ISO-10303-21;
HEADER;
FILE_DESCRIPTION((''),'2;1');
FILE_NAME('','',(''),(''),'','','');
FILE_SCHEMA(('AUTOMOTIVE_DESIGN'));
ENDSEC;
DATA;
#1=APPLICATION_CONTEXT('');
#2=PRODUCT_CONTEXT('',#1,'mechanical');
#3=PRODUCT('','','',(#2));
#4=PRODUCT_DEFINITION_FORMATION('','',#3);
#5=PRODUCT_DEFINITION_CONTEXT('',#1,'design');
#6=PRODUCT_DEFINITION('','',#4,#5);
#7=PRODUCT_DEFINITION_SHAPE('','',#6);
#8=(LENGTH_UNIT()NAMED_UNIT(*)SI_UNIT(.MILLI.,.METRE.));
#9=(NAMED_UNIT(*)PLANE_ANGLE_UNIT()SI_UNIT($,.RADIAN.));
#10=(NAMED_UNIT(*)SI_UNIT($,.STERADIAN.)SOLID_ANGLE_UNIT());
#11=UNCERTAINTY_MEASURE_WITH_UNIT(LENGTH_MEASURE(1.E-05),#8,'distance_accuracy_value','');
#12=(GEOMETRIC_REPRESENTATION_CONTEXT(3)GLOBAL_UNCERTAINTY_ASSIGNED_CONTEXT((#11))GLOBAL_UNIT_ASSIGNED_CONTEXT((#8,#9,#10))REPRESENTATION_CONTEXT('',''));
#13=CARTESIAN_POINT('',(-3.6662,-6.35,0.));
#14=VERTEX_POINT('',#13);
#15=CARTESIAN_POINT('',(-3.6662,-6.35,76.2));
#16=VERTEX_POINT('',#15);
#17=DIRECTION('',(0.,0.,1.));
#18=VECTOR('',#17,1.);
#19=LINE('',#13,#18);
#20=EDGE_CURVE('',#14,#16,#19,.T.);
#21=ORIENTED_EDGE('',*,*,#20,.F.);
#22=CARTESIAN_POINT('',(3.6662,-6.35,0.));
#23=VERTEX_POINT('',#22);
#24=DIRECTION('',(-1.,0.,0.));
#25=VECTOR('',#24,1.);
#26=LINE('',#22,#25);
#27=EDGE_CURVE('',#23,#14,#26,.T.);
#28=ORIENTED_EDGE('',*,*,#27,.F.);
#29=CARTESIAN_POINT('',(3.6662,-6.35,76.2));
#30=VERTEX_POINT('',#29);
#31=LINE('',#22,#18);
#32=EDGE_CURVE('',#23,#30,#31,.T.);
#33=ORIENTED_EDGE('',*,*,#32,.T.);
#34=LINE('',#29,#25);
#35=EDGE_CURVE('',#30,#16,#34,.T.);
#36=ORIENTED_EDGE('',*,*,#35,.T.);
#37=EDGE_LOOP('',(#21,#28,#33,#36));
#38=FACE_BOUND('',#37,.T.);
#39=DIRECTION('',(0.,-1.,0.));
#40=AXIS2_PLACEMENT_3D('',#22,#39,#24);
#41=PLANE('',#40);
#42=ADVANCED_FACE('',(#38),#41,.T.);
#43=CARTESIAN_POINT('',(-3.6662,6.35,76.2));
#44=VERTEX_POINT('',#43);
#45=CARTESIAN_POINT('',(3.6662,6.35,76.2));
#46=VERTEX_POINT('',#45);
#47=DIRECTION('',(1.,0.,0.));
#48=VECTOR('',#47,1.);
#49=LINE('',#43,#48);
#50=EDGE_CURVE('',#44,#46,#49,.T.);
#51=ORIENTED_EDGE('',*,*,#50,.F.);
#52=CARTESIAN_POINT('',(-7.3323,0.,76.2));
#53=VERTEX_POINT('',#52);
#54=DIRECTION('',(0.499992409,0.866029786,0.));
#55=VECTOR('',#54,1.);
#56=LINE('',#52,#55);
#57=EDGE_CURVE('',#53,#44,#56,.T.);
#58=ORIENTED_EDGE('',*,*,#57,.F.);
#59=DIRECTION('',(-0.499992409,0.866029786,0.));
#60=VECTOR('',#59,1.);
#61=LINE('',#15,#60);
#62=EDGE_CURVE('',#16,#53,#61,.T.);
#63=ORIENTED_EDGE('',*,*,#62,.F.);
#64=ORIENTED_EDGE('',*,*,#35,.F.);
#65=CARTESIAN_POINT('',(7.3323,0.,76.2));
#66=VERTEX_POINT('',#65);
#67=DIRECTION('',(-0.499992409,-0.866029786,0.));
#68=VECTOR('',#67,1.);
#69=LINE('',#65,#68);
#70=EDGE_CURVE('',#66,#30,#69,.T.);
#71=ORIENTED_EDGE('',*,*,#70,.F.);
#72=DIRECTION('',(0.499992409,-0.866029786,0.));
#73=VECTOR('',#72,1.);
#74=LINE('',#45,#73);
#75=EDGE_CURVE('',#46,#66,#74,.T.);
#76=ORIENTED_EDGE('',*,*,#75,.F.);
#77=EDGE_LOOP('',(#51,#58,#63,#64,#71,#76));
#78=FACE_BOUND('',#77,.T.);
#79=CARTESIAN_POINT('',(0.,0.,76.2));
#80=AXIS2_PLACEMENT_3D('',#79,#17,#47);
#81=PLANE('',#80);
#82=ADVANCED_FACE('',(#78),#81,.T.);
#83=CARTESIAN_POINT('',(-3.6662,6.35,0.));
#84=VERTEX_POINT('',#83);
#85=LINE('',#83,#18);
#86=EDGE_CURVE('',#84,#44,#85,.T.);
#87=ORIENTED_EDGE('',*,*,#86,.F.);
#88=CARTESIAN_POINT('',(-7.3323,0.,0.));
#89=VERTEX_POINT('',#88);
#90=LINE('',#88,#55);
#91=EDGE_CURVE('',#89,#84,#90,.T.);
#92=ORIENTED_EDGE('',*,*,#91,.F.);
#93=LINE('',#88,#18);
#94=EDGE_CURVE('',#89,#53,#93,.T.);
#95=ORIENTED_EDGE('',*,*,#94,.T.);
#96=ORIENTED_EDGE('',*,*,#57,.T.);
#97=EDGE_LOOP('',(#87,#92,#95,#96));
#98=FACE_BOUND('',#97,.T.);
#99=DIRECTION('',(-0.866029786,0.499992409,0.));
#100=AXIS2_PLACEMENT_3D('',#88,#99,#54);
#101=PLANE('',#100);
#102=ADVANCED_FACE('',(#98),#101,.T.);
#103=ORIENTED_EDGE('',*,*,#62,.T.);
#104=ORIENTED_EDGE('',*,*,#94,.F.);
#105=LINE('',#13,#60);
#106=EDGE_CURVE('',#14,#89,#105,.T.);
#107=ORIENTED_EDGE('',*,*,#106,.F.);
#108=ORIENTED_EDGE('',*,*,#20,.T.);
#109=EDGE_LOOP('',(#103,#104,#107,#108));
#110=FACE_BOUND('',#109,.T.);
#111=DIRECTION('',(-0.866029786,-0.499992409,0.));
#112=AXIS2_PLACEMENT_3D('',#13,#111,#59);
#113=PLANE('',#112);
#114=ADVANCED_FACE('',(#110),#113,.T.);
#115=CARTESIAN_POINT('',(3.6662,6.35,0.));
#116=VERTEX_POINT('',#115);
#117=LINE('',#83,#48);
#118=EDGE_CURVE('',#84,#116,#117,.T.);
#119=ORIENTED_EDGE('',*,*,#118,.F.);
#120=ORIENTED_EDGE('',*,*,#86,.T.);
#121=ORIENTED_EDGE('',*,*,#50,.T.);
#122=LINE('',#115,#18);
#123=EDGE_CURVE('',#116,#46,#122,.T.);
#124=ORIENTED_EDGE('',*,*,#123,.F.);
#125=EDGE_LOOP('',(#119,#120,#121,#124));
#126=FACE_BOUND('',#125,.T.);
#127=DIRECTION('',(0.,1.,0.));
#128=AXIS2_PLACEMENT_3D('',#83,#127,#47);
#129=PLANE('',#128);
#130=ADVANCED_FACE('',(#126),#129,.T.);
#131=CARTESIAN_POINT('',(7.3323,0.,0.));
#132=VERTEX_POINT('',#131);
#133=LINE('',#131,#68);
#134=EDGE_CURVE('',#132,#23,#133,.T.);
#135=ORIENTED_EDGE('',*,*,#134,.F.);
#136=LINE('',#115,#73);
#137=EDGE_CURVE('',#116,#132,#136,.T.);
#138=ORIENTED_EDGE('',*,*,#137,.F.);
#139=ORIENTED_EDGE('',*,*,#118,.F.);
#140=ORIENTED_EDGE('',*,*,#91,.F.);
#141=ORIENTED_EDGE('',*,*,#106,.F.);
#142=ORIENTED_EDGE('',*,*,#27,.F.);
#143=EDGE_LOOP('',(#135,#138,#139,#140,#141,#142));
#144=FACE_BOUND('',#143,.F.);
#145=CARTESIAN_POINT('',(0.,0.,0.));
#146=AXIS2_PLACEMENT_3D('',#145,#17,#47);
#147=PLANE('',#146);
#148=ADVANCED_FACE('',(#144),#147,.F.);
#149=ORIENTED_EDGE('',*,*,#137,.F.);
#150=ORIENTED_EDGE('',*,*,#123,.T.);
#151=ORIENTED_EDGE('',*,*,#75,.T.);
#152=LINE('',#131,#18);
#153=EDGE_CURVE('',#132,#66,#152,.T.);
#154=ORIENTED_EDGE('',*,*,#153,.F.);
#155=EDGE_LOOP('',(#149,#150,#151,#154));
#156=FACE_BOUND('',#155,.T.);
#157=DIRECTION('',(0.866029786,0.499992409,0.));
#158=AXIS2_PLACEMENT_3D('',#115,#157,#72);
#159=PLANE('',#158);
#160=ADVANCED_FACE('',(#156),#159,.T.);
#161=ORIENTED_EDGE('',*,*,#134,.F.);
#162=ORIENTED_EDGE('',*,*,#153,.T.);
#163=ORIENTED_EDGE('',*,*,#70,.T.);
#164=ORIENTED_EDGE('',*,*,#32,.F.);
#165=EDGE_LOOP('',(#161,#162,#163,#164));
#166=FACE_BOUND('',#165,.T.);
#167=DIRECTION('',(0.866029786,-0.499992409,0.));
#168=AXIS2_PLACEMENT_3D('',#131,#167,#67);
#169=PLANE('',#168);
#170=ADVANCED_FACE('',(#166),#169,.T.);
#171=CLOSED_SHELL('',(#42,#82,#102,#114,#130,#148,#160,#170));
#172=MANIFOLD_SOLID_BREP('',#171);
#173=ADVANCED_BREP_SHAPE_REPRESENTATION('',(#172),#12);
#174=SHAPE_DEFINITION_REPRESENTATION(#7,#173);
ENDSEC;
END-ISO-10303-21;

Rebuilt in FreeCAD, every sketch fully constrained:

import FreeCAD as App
import Part
import Sketcher
Q = App.Units.Quantity


def add_polygon(sketch, points):
    """Adds a closed chain of lines whose ends are joined by coincident constraints."""
    first, n = sketch.GeometryCount, len(points)
    for a, b in zip(points, points[1:] + points[:1]):
        sketch.addGeometry(Part.LineSegment(App.Vector(*a, 0), App.Vector(*b, 0)), False)
    for i in range(n):
        sketch.addConstraint(Sketcher.Constraint("Coincident", first + i, 2, first + (i + 1) % n, 1))

doc = App.newDocument("Part")
params = doc.addObject("Spreadsheet::Sheet", "Params")
for row, (alias, value) in enumerate([
    ("pad1_length", "3 in"),
], start=1):
    params.set(f"A{row}", alias)
    params.set(f"B{row}", "=" + value)
    params.setAlias(f"B{row}", alias)

body = doc.addObject("PartDesign::Body", "Body")

sketch1 = body.newObject("Sketcher::SketchObject", "Sketch")
sketch1.AttachmentSupport = (doc.getObject("XY_Plane"), [""])
sketch1.MapMode = "FlatFace"
add_polygon(sketch1, [(4, 6), (-4, 6), (-7, 0), (-4, -6), (4, -6), (7, 0)])
sketch1.addConstraint(Sketcher.Constraint("Horizontal", 0))
sketch1.addConstraint(Sketcher.Constraint("Horizontal", 3))
sketch1.addConstraint(Sketcher.Constraint("Symmetric", 0, 2, 3, 2, -1, 1))
sketch1.addConstraint(Sketcher.Constraint("Symmetric", 1, 2, 4, 2, -1, 1))
sketch1.addConstraint(Sketcher.Constraint("PointOnObject", 1, 2, -1))
sketch1.addConstraint(Sketcher.Constraint("Parallel", 2, 5))
sketch1.addConstraint(Sketcher.Constraint("Vertical", 0, 2, 2, 2))
sketch1.addConstraint(Sketcher.Constraint("DistanceY", 2, 2, 0, 2, Q("0.5 in")))
sketch1.addConstraint(Sketcher.Constraint("Angle", 1, Q("-119.9995 deg")))
sketch1.addConstraint(Sketcher.Constraint("DistanceX", 1, 2, 3, 2, Q("0.433 in")))
pad1 = body.newObject("PartDesign::Pad", "Pad")
pad1.Profile = sketch1
pad1.setExpression("Length", "Params.pad1_length")

doc.recompute()
